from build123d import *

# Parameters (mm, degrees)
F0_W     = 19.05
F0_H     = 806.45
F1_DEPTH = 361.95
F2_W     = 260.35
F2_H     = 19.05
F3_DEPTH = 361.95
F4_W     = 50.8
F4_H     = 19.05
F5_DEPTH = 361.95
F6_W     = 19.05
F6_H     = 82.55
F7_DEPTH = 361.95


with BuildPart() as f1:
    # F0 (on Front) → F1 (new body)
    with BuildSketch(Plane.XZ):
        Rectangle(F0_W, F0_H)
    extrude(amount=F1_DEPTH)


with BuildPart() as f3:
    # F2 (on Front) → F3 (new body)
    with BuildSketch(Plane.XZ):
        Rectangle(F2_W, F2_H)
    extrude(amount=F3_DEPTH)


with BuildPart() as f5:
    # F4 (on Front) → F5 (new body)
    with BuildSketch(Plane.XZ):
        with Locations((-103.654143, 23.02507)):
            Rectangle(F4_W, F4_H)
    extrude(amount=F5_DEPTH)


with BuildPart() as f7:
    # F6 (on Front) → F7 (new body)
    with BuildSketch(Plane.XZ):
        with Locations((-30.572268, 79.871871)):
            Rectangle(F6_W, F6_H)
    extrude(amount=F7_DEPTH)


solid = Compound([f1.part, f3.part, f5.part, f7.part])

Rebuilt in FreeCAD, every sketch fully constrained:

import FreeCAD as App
import Part
import Sketcher
from FreeCAD import Vector
Q = App.Units.Quantity


def add_polygon(sketch, points):
    """Adds a closed chain of lines whose ends are joined by coincident constraints."""
    first, n = sketch.GeometryCount, len(points)
    for a, b in zip(points, points[1:] + points[:1]):
        sketch.addGeometry(Part.LineSegment(App.Vector(*a, 0), App.Vector(*b, 0)), False)
    for i in range(n):
        sketch.addConstraint(Sketcher.Constraint("Coincident", first + i, 2, first + (i + 1) % n, 1))

doc = App.newDocument("Part")
params = doc.addObject("Spreadsheet::Sheet", "Params")
for row, (alias, value) in enumerate([
    ("sketch1_width", "0.75 in"),
    ("sketch1_height", "31.75 in"),
    ("pad1_length", "14.25 in"),
    ("sketch2_width", "10.25 in"),
    ("sketch2_height", "0.75 in"),
    ("pad2_length", "14.25 in"),
    ("sketch3_width", "2 in"),
    ("sketch3_height", "0.75 in"),
    ("pad3_length", "14.25 in"),
    ("sketch4_width", "0.75 in"),
    ("sketch4_height", "3.25 in"),
    ("pad4_length", "14.25 in"),
], start=1):
    params.set(f"A{row}", alias)
    params.set(f"B{row}", "=" + value)
    params.setAlias(f"B{row}", alias)

body = doc.addObject("PartDesign::Body", "Body")

sketch1 = doc.addObject("Sketcher::SketchObject", "Sketch")
body.addObject(sketch1)
sketch1.AttachmentSupport = (doc.XZ_Plane, [""])
sketch1.MapMode = "FlatFace"
add_polygon(sketch1, [(-10, 403), (-10, -403), (10, -403), (10, 403)])
sketch1.addConstraint([
    Sketcher.Constraint("Vertical", 0),
    Sketcher.Constraint("Horizontal", 1),
    Sketcher.Constraint("Vertical", 2),
    Sketcher.Constraint("Horizontal", 3),
    Sketcher.Constraint("Symmetric", 0, 2, 2, 2, -1, 1),
    Sketcher.Constraint("DistanceX", 1, 1, 1, 2, Q("0.75 in")),
    Sketcher.Constraint("DistanceY", 0, 2, 0, 1, Q("31.75 in")),
])
sketch1.setExpression("Constraints[9]", "Params.sketch1_width")
sketch1.setExpression("Constraints[10]", "Params.sketch1_height")
pad1 = doc.addObject("PartDesign::Pad", "Pad")
body.addObject(pad1)
pad1.Profile = sketch1
pad1.setExpression("Length", "Params.pad1_length")
body2 = doc.addObject("PartDesign::Body", "Body001")

sketch2 = doc.addObject("Sketcher::SketchObject", "Sketch001")
body2.addObject(sketch2)
sketch2.AttachmentSupport = (doc.getObject("XZ_Plane001"), [""])
sketch2.MapMode = "FlatFace"
add_polygon(sketch2, [(-130, 10), (-130, -10), (130, -10), (130, 10)])
sketch2.addConstraint([
    Sketcher.Constraint("Vertical", 0),
    Sketcher.Constraint("Horizontal", 1),
    Sketcher.Constraint("Vertical", 2),
    Sketcher.Constraint("Horizontal", 3),
    Sketcher.Constraint("Symmetric", 0, 2, 2, 2, -1, 1),
    Sketcher.Constraint("DistanceX", 1, 1, 1, 2, Q("10.25 in")),
    Sketcher.Constraint("DistanceY", 0, 2, 0, 1, Q("0.75 in")),
])
sketch2.setExpression("Constraints[9]", "Params.sketch2_width")
sketch2.setExpression("Constraints[10]", "Params.sketch2_height")
pad2 = doc.addObject("PartDesign::Pad", "Pad001")
body2.addObject(pad2)
pad2.Profile = sketch2
pad2.setExpression("Length", "Params.pad2_length")
body3 = doc.addObject("PartDesign::Body", "Body002")

sketch3 = doc.addObject("Sketcher::SketchObject", "Sketch002")
body3.addObject(sketch3)
sketch3.AttachmentSupport = (doc.getObject("XZ_Plane002"), [""])
sketch3.MapMode = "FlatFace"
add_polygon(sketch3, [(-129, 33), (-129, 14), (-78, 14), (-78, 33)])
sketch3.addConstraint([
    Sketcher.Constraint("Vertical", 0),
    Sketcher.Constraint("Horizontal", 1),
    Sketcher.Constraint("Vertical", 2),
    Sketcher.Constraint("Horizontal", 3),
    Sketcher.Constraint("DistanceX", 1, 1, 1, 2, Q("2 in")),
    Sketcher.Constraint("DistanceY", 0, 2, 0, 1, Q("0.75 in")),
    Sketcher.Constraint("DistanceY", -1, 1, 0, 2, Q("13.50007 mm")),
    Sketcher.Constraint("DistanceX", 0, 2, -1, 1, Q("129.054143 mm")),
])
sketch3.setExpression("Constraints[8]", "Params.sketch3_width")
sketch3.setExpression("Constraints[9]", "Params.sketch3_height")
pad3 = doc.addObject("PartDesign::Pad", "Pad002")
body3.addObject(pad3)
pad3.Profile = sketch3
pad3.setExpression("Length", "Params.pad3_length")
body4 = doc.addObject("PartDesign::Body", "Body003")

sketch4 = doc.addObject("Sketcher::SketchObject", "Sketch003")
body4.addObject(sketch4)
sketch4.AttachmentSupport = (doc.getObject("XZ_Plane003"), [""])
sketch4.MapMode = "FlatFace"
add_polygon(sketch4, [(-40, 121), (-40, 39), (-21, 39), (-21, 121)])
sketch4.addConstraint([
    Sketcher.Constraint("Vertical", 0),
    Sketcher.Constraint("Horizontal", 1),
    Sketcher.Constraint("Vertical", 2),
    Sketcher.Constraint("Horizontal", 3),
    Sketcher.Constraint("DistanceX", 1, 1, 1, 2, Q("0.75 in")),
    Sketcher.Constraint("DistanceY", 0, 2, 0, 1, Q("3.25 in")),
    Sketcher.Constraint("DistanceY", -1, 1, 0, 2, Q("38.596871 mm")),
    Sketcher.Constraint("DistanceX", 0, 2, -1, 1, Q("40.097268 mm")),
])
sketch4.setExpression("Constraints[8]", "Params.sketch4_width")
sketch4.setExpression("Constraints[9]", "Params.sketch4_height")
pad4 = doc.addObject("PartDesign::Pad", "Pad003")
body4.addObject(pad4)
pad4.Profile = sketch4
pad4.setExpression("Length", "Params.pad4_length")

doc.recompute()
